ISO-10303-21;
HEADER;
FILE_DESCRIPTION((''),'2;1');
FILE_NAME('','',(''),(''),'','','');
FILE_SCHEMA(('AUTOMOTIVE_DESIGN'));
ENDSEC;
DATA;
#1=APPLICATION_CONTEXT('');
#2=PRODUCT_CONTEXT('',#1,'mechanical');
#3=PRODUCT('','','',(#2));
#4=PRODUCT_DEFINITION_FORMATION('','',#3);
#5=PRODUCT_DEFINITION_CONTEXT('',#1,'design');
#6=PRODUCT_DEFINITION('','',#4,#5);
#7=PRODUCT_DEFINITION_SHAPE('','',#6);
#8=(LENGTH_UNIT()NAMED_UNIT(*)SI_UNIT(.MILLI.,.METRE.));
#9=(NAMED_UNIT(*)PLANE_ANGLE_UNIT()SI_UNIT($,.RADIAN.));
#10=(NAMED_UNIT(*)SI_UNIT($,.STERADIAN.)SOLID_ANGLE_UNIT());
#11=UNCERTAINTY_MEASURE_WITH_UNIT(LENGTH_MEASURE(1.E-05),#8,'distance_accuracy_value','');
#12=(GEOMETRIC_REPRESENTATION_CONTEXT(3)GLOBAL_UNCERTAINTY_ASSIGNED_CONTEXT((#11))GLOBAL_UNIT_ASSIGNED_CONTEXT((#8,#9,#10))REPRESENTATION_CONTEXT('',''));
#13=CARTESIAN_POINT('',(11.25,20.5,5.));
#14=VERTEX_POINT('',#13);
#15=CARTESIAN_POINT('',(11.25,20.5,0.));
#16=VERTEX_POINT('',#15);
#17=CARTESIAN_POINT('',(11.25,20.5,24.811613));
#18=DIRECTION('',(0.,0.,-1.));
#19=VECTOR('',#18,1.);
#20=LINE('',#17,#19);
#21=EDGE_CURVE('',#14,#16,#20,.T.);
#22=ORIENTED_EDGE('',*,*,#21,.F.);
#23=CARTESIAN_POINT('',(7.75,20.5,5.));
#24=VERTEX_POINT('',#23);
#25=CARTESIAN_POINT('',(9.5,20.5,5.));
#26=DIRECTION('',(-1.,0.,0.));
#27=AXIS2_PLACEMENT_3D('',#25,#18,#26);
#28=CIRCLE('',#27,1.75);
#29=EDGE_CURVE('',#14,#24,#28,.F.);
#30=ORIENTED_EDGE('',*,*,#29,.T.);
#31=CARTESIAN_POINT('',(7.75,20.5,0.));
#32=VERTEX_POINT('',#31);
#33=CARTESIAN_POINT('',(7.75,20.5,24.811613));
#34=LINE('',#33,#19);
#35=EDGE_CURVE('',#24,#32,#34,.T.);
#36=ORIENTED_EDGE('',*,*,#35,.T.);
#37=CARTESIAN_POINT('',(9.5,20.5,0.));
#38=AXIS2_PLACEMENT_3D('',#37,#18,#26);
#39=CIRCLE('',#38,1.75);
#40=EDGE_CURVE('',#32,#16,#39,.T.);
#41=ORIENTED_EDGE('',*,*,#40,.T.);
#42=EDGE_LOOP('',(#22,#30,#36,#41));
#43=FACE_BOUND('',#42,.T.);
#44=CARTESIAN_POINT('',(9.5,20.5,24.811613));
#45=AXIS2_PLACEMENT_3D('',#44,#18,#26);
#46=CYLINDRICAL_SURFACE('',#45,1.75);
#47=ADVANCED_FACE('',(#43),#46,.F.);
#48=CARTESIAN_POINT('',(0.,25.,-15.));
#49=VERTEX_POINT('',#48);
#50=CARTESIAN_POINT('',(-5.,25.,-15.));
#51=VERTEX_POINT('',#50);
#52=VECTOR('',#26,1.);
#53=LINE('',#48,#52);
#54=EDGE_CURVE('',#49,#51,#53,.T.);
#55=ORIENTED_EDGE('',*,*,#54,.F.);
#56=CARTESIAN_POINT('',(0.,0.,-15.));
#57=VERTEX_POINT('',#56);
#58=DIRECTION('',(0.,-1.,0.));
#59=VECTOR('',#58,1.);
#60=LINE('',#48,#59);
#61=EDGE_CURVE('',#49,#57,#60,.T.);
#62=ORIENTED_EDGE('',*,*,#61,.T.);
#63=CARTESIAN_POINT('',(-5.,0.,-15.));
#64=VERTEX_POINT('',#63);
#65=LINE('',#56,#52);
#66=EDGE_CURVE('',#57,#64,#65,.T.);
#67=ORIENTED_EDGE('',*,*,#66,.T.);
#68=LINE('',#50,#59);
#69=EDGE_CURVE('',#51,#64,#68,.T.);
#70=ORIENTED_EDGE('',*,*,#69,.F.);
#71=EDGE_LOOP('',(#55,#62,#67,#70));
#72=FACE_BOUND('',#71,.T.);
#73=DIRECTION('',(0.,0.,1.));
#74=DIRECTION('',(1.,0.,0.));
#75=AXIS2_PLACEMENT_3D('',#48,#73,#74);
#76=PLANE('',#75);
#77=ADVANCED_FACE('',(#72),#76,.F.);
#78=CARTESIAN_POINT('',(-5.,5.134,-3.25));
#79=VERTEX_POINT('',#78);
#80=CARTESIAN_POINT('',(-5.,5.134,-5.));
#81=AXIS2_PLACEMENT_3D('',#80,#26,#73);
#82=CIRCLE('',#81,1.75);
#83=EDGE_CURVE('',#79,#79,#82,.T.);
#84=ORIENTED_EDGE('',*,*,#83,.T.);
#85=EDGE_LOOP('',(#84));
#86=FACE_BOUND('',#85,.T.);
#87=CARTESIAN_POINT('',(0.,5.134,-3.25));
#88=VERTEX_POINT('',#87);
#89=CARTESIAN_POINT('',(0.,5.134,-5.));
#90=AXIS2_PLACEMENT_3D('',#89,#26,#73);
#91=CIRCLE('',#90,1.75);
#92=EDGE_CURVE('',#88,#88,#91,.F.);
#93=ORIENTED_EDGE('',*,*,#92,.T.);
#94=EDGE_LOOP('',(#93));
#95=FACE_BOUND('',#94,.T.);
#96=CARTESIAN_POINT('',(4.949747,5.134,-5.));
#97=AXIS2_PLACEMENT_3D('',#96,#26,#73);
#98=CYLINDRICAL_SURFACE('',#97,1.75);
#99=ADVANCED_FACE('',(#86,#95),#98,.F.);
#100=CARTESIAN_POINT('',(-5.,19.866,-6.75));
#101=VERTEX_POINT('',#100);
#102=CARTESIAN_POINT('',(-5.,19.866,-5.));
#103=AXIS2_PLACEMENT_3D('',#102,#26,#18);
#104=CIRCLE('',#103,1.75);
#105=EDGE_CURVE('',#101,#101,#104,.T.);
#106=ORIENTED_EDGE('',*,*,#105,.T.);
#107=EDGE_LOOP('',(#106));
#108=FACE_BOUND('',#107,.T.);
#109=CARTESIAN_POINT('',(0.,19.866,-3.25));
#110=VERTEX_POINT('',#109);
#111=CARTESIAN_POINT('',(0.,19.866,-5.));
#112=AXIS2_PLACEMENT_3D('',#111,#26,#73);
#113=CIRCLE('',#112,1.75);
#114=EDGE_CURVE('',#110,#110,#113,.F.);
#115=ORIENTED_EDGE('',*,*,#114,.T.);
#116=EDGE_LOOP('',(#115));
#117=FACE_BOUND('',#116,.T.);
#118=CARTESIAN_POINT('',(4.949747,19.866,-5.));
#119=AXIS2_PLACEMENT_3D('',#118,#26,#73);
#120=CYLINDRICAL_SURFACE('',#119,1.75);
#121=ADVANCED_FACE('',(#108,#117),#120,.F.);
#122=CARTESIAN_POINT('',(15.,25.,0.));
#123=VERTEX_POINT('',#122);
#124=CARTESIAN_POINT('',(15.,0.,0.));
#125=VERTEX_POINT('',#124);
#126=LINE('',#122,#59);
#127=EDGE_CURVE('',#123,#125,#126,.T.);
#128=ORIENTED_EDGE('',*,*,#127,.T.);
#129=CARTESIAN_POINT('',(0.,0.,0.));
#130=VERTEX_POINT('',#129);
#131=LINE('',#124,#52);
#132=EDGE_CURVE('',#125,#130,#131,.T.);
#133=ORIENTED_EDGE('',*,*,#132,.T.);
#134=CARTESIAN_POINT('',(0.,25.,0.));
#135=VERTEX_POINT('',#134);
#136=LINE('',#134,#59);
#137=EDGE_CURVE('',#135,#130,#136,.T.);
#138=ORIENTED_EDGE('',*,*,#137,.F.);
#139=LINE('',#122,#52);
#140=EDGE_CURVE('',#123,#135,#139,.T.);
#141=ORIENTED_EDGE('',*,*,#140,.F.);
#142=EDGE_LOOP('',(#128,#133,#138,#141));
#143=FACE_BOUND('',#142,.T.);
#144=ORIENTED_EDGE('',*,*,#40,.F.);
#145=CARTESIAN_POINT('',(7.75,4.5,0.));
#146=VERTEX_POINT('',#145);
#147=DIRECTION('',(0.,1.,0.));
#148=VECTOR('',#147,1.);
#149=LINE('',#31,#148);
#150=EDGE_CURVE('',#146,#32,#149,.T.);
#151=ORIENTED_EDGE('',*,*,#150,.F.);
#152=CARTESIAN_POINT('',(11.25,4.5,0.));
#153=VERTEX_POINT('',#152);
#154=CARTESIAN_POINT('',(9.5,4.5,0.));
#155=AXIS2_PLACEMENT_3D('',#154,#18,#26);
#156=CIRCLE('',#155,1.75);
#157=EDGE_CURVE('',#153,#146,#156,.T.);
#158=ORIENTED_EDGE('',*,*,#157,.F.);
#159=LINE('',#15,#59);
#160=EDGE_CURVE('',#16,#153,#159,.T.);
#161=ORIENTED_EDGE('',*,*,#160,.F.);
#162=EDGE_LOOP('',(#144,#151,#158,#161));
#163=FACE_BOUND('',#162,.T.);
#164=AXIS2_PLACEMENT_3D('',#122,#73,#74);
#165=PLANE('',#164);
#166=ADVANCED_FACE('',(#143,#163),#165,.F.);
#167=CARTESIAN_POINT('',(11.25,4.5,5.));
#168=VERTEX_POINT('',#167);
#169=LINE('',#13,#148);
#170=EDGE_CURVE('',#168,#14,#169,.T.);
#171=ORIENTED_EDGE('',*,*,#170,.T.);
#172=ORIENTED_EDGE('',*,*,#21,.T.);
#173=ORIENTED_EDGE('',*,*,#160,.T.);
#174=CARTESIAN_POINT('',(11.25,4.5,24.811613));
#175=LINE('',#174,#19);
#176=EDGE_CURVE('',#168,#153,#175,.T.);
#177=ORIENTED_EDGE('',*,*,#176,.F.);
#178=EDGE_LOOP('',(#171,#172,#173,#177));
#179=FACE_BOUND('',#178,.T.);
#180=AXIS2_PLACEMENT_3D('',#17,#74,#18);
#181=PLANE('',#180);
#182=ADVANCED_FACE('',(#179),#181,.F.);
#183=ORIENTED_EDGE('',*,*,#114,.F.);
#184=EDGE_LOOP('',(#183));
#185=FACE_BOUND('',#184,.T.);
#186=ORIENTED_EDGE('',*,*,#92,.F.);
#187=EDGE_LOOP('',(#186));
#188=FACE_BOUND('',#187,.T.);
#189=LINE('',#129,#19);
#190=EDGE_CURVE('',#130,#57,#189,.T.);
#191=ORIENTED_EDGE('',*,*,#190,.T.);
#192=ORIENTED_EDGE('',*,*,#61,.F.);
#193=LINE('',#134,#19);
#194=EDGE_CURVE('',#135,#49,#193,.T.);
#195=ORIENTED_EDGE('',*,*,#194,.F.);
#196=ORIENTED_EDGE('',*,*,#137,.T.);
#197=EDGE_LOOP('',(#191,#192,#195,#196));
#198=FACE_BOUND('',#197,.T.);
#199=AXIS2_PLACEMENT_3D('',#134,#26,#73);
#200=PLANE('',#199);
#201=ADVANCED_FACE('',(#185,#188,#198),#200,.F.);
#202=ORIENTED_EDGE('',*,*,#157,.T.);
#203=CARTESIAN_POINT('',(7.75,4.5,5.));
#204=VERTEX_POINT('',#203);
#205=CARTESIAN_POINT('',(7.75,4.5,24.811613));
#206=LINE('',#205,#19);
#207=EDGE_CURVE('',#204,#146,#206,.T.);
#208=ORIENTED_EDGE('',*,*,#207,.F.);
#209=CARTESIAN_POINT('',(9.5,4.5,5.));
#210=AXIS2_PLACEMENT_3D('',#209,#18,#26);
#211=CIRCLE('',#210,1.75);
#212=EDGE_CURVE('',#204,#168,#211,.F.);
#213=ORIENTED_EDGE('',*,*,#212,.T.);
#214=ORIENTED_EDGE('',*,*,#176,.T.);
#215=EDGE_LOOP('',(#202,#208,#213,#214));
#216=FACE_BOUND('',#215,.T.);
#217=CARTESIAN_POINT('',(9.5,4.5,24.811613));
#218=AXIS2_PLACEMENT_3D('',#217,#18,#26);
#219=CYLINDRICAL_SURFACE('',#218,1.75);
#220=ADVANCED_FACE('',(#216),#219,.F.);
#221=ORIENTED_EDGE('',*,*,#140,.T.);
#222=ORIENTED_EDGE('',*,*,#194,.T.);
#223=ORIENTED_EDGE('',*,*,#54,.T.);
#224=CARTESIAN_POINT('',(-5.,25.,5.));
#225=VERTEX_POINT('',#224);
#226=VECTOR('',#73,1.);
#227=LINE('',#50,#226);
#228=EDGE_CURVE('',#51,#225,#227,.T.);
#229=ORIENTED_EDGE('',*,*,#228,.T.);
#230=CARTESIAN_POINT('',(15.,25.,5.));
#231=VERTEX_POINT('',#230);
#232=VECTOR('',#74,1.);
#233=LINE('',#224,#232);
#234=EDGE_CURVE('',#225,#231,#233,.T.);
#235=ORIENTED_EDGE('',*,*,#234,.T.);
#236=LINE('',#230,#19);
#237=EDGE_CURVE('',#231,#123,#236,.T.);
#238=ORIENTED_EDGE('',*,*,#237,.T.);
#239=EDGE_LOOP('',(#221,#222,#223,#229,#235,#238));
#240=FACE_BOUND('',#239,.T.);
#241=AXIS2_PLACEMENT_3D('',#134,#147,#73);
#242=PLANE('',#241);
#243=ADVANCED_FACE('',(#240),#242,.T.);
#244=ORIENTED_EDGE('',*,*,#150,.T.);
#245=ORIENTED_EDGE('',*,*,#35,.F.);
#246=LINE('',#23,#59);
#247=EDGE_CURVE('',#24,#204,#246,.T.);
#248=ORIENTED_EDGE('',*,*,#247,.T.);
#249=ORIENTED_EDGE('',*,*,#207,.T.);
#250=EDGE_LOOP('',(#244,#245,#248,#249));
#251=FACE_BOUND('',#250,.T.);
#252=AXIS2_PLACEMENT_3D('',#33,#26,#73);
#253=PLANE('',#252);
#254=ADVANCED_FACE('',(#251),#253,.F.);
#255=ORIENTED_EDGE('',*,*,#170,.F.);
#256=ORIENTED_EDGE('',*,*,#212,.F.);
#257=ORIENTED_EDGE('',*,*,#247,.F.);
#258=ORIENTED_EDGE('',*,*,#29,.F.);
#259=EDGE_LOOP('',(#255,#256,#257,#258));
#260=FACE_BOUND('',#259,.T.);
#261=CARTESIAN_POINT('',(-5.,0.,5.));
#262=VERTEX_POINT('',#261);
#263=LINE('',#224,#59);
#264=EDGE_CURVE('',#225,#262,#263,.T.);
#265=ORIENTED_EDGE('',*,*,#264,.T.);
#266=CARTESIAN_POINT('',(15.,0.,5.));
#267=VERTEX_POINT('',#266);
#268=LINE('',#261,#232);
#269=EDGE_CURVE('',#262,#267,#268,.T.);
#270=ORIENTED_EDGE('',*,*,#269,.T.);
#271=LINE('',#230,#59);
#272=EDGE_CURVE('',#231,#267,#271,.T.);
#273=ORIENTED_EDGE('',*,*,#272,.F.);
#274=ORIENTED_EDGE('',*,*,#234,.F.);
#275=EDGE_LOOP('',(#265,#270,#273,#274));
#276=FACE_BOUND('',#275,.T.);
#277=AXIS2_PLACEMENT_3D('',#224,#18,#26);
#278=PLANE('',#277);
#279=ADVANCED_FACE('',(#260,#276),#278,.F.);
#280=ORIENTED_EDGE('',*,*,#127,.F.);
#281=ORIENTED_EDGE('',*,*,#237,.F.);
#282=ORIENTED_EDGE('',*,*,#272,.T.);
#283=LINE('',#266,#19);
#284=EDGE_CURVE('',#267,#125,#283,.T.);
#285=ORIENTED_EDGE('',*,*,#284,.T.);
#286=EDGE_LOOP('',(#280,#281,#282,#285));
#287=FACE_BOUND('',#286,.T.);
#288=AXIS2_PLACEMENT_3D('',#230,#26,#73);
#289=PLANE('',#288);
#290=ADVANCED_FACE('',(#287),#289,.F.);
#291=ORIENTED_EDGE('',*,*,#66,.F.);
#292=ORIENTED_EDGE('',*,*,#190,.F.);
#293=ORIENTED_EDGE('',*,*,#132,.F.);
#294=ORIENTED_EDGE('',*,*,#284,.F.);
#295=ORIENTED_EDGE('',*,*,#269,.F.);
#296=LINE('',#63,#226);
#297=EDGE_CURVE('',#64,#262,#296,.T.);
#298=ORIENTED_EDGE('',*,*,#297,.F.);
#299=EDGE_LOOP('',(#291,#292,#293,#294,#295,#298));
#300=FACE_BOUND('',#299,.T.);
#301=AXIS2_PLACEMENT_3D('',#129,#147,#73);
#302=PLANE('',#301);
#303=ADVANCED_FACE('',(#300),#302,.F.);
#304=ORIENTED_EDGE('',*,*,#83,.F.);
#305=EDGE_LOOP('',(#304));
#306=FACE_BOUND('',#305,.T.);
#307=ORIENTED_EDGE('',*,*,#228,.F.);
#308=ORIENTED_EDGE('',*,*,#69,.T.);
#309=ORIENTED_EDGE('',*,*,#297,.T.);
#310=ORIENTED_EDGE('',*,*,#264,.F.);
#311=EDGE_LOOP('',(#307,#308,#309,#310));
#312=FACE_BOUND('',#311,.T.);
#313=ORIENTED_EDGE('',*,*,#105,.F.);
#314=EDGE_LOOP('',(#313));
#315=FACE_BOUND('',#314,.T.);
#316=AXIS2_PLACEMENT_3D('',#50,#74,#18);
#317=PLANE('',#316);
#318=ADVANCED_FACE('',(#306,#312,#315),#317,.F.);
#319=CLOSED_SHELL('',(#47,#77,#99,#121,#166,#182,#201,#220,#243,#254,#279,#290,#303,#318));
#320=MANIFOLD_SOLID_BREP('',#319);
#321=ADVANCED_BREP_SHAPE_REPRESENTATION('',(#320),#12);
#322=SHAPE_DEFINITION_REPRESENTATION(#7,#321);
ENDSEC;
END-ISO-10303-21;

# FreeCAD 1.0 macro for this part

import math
import FreeCAD as App
import Part
import Sketcher

V = App.Vector

doc = App.newDocument("Part")
body = doc.addObject("PartDesign::Body", "Body")

# Sketch on XZ plane
sketch1 = body.newObject("Sketcher::SketchObject", "Sketch")
sketch1.AttachmentSupport = (doc.getObject("XZ_Plane"), [""])
sketch1.MapMode = "FlatFace"
sketch1.addGeometry([
    Part.LineSegment(V(-5, -15, 0), V(-5, 5, 0)),  # 0
    Part.LineSegment(V(-5, 5, 0), V(15, 5, 0)),  # 1
    Part.LineSegment(V(15, 5, 0), V(15, 0, 0)),  # 2
    Part.LineSegment(V(15, 0, 0), V(0, 0, 0)),  # 3
    Part.LineSegment(V(0, 0, 0), V(0, -15, 0)),  # 4
    Part.LineSegment(V(0, -15, 0), V(-5, -15, 0)),  # 5
], False)
sketch1.addConstraint([
    Sketcher.Constraint("Coincident", 0, 2, 1, 1),
    Sketcher.Constraint("Coincident", 1, 2, 2, 1),
    Sketcher.Constraint("Coincident", 2, 2, 3, 1),
    Sketcher.Constraint("Coincident", 3, 2, 4, 1),
    Sketcher.Constraint("Coincident", 4, 2, 5, 1),
    Sketcher.Constraint("Coincident", 5, 2, 0, 1),
    Sketcher.Constraint("Vertical", 0),
    Sketcher.Constraint("Horizontal", 1),
    Sketcher.Constraint("Vertical", 2),
    Sketcher.Constraint("Horizontal", 3),
    Sketcher.Constraint("Vertical", 4),
    Sketcher.Constraint("Horizontal", 5),
    Sketcher.Constraint("Coincident", 3, 2, -1, 1),
    Sketcher.Constraint("Equal", 1, 0),
    Sketcher.Constraint("Equal", 5, 2),
    Sketcher.Constraint("DistanceX", 1, 1, 1, 2, 20.0),
    Sketcher.Constraint("DistanceX", 3, 2, 3, 1, 15.0),
])
pad1 = body.newObject("PartDesign::Pad", "Pad")
pad1.Profile = sketch1
pad1.Length = 25
pad1.Reversed = True

# Sketch on XY plane
sketch2 = body.newObject("Sketcher::SketchObject", "Sketch001")
sketch2.AttachmentSupport = (doc.getObject("XY_Plane"), [""])
sketch2.MapMode = "FlatFace"
sketch2.addGeometry([
    Part.LineSegment(V(7.8, 4.5, 0), V(7.8, 20.5, 0)),
    Part.ArcOfCircle(Part.Circle(V(9.5, 20.5, 0), V(0, 0, 1), 1.8), math.radians(0), math.radians(180)),
    Part.LineSegment(V(11.2, 20.5, 0), V(11.2, 4.5, 0)),
    Part.ArcOfCircle(Part.Circle(V(9.5, 4.5, 0), V(0, 0, 1), 1.8), math.radians(180), math.radians(360)),
], False)
sketch2.addConstraint([
    Sketcher.Constraint("Tangent", 0, 2, 1, 2),
    Sketcher.Constraint("Tangent", 1, 1, 2, 1),
    Sketcher.Constraint("Tangent", 2, 2, 3, 2),
    Sketcher.Constraint("Tangent", 3, 1, 0, 1),
    Sketcher.Constraint("Vertical", 0),
    Sketcher.Constraint("Vertical", 2),
    Sketcher.Constraint("DistanceY", 0, 1, 0, 2, 16.0),
    Sketcher.Constraint("Radius", 1, 1.75),
    Sketcher.Constraint("DistanceX", -1, 1, 1, 3, 9.5),
    Sketcher.Constraint("DistanceY", -1, 1, 1, 3, 20.5),
])
pocket1 = body.newObject("PartDesign::Pocket", "Pocket")
pocket1.Profile = sketch2
pocket1.Length = 5
pocket1.Reversed = True

# Sketch on YZ plane
sketch3 = body.newObject("Sketcher::SketchObject", "Sketch002")
sketch3.AttachmentSupport = (doc.getObject("YZ_Plane"), [""])
sketch3.MapMode = "FlatFace"
sketch3.AttachmentOffset = App.Placement(V(0, 0, -5), App.Rotation())
sketch3.addGeometry([
    Part.Circle(V(5.1, -5, 0), V(0, 0, 1), 1.8),
    Part.Circle(V(19.9, -5, 0), V(0, 0, 1), 1.8),
], False)
sketch3.addConstraint([
    Sketcher.Constraint("Equal", 0, 1),
    Sketcher.Constraint("Horizontal", 0, 3, 1, 3),
    Sketcher.Constraint("Diameter", 0, 3.5),
    Sketcher.Constraint("DistanceY", 0, 3, -1, 1, 5.0),
    Sketcher.Constraint("DistanceX", -1, 1, 0, 3, 5.134),
    Sketcher.Constraint("DistanceX", -1, 1, 1, 3, 19.866),
])
pocket2 = body.newObject("PartDesign::Pocket", "Pocket001")
pocket2.Profile = sketch3
pocket2.Length = 5
pocket2.Reversed = True

doc.recompute()
